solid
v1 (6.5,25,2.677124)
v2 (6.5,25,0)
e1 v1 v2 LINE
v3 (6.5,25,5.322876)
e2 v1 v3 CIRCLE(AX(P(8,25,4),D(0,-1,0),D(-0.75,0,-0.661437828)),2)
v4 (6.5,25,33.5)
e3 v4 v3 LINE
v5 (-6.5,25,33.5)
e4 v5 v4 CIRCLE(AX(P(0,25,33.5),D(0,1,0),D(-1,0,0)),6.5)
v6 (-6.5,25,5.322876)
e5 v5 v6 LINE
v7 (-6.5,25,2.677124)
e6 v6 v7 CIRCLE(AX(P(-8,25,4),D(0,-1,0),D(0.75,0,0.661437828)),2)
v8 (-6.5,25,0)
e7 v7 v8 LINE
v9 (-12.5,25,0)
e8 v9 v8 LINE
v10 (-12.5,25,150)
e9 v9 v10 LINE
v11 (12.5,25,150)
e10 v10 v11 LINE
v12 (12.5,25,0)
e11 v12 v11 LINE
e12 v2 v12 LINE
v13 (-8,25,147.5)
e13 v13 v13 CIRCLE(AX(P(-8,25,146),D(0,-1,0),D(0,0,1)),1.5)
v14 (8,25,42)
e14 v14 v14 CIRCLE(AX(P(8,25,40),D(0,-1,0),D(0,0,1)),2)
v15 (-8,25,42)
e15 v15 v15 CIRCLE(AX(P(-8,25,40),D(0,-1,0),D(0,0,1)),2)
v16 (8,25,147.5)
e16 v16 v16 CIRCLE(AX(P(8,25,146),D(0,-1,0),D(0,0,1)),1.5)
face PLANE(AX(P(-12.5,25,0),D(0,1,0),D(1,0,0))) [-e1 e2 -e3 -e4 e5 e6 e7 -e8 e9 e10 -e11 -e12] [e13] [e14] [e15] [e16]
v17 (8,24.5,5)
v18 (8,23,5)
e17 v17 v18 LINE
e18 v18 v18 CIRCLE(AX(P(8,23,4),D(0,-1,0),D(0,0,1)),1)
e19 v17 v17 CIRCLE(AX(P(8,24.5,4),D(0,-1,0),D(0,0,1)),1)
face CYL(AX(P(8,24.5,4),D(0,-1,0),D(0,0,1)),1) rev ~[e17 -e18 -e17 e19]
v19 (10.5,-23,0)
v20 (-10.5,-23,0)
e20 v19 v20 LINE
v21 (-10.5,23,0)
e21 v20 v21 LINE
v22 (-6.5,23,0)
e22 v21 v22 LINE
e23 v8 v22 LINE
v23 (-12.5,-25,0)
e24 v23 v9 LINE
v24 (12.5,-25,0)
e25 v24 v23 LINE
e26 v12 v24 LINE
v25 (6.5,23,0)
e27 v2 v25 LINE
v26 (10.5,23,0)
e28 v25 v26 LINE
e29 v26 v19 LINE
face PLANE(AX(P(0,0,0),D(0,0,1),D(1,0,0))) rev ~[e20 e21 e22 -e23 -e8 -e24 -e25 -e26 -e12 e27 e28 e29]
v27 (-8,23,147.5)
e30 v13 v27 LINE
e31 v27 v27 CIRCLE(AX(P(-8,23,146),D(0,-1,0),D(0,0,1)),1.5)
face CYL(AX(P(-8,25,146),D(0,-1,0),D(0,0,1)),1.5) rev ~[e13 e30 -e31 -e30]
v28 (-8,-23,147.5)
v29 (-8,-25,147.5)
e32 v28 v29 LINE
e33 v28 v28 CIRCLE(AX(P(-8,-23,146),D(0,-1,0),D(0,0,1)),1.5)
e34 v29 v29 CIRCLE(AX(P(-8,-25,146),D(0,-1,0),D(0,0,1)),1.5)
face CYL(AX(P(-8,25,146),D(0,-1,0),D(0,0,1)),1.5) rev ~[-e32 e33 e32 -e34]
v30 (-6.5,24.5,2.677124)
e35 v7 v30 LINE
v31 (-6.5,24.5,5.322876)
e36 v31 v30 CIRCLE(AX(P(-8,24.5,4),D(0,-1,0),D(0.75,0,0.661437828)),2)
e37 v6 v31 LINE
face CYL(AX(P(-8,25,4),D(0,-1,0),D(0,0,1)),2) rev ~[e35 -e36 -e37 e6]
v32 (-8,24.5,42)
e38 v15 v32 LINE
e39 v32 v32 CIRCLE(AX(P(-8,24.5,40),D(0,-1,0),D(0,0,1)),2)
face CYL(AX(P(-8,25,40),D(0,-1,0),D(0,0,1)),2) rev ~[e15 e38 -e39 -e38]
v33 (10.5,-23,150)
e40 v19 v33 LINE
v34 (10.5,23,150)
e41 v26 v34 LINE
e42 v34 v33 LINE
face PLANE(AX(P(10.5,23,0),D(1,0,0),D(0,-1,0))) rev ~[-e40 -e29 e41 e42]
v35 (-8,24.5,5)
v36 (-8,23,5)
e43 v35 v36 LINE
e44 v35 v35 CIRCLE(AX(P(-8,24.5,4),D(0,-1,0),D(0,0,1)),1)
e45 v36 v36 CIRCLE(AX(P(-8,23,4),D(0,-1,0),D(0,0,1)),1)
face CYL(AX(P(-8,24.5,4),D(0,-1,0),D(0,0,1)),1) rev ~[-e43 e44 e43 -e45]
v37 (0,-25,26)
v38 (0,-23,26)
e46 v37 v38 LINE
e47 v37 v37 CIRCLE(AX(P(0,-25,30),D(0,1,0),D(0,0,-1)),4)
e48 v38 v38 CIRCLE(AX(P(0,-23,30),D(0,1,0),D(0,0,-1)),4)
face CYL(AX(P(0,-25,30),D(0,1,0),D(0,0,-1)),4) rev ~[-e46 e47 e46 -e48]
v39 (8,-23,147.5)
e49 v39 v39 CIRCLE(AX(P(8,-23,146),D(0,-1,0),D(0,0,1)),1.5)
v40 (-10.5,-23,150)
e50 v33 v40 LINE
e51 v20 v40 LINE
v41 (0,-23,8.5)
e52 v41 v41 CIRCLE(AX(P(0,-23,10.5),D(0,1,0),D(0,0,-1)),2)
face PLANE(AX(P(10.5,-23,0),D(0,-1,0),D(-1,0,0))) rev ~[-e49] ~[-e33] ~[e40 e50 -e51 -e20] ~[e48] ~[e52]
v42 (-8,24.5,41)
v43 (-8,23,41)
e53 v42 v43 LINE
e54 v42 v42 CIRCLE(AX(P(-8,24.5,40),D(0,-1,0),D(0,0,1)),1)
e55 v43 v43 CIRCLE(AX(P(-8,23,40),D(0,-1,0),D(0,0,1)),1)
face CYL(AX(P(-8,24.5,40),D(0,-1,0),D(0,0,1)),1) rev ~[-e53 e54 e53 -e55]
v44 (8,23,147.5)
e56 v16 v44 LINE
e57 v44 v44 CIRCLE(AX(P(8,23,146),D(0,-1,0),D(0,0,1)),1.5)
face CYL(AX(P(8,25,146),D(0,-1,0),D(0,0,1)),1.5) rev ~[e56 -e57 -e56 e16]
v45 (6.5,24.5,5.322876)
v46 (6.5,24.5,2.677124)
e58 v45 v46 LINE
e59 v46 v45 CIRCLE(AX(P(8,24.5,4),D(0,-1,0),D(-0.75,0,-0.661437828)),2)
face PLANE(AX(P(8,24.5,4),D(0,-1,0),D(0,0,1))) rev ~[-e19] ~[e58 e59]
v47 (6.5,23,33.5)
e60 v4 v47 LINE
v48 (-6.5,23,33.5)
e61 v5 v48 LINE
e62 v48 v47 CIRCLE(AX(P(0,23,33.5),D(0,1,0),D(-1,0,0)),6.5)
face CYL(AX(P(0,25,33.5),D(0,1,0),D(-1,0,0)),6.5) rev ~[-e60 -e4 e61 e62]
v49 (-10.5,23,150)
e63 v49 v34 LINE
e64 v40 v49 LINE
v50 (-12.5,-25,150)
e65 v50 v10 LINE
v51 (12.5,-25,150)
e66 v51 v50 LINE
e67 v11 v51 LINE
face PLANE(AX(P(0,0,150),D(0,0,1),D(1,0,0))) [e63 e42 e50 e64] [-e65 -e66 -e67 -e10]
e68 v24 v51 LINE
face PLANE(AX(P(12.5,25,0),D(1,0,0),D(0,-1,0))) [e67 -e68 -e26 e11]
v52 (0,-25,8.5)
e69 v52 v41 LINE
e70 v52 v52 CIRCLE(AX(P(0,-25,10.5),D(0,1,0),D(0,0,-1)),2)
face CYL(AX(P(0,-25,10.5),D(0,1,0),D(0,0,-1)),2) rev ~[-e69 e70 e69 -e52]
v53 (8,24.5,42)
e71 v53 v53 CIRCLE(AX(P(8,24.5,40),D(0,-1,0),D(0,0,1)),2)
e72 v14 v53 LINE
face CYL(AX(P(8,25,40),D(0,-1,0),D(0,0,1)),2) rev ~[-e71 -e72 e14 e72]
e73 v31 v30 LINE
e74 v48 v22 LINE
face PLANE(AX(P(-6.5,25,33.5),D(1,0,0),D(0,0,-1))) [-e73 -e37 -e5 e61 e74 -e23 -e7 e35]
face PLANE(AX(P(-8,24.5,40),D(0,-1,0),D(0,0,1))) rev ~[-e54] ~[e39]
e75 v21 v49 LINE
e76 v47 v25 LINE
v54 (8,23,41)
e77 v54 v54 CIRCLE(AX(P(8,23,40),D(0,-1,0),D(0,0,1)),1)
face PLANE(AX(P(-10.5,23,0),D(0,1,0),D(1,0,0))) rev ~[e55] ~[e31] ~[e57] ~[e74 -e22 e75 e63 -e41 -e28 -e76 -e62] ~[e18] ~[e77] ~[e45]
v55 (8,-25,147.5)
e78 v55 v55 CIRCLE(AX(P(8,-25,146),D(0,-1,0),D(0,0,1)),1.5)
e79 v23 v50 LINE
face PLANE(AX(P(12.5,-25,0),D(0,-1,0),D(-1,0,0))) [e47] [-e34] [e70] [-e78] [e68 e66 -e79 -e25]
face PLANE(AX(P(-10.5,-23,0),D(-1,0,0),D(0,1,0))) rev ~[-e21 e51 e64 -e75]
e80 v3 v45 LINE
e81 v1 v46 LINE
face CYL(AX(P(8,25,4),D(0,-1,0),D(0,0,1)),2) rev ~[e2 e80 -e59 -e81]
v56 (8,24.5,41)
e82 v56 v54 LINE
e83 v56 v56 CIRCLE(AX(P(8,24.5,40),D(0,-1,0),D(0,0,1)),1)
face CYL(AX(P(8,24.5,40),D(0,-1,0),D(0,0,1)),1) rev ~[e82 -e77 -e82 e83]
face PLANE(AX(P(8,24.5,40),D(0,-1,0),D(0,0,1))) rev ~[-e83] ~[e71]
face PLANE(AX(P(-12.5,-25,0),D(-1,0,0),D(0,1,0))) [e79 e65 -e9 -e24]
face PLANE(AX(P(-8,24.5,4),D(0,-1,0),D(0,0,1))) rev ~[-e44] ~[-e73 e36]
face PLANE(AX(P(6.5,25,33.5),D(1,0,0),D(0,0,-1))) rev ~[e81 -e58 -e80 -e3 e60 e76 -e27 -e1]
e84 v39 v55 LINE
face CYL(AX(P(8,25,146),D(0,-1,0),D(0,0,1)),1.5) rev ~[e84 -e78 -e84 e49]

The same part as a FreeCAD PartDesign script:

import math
import FreeCAD as App
import Part
import Sketcher

doc = App.newDocument("Part")
params = doc.addObject("Spreadsheet::Sheet", "Params")
for row, (alias, value) in enumerate([
    ("sketch1_width", "25 mm"),
    ("sketch1_width2", "21 mm"),
    ("sketch1_height", "50 mm"),
    ("sketch1_height2", "46 mm"),
    ("pad1_length", "150 mm"),
    ("sketch2_radius", "6.5 mm"),
    ("sketch2_height", "33.5 mm"),
    ("pocket1_length", "2 mm"),
    ("sketch3_diameter", "2 mm"),
    ("hole_diameter", "2 mm"),
    ("hole_depth", "2 mm"),
    ("hole_cbore_diameter", "4 mm"),
    ("hole_cbore_depth", "0.5 mm"),
    ("sketch4_diameter", "4 mm"),
    ("hole2_diameter", "4 mm"),
    ("sketch5_diameter", "3 mm"),
    ("hole3_diameter", "3 mm"),
    ("sketch6_diameter", "8 mm"),
    ("hole4_diameter", "8 mm"),
], start=1):
    params.set(f"A{row}", alias)
    params.set(f"B{row}", "=" + value)
    params.setAlias(f"B{row}", alias)

body = doc.addObject("PartDesign::Body", "Body")

# Sketch on XY plane
sketch1 = body.newObject("Sketcher::SketchObject", "Sketch")
sketch1.AttachmentSupport = (doc.getObject("XY_Plane"), [""])
sketch1.MapMode = "FlatFace"
sketch1.addGeometry([
    Part.LineSegment(App.Vector(12, 25, 0), App.Vector(-12, 25, 0)),  # 0
    Part.LineSegment(App.Vector(-12, 25, 0), App.Vector(-12, -25, 0)),  # 1
    Part.LineSegment(App.Vector(-12, -25, 0), App.Vector(12, -25, 0)),  # 2
    Part.LineSegment(App.Vector(12, -25, 0), App.Vector(12, 25, 0)),  # 3
    Part.LineSegment(App.Vector(-10, -23, 0), App.Vector(-10, 23, 0)),  # 4
    Part.LineSegment(App.Vector(-10, 23, 0), App.Vector(10, 23, 0)),  # 5
    Part.LineSegment(App.Vector(10, 23, 0), App.Vector(10, -23, 0)),  # 6
    Part.LineSegment(App.Vector(10, -23, 0), App.Vector(-10, -23, 0)),  # 7
], False)
sketch1.addConstraint([
    Sketcher.Constraint("Coincident", 0, 2, 1, 1),
    Sketcher.Constraint("Coincident", 1, 2, 2, 1),
    Sketcher.Constraint("Coincident", 2, 2, 3, 1),
    Sketcher.Constraint("Coincident", 3, 2, 0, 1),
    Sketcher.Constraint("Coincident", 4, 2, 5, 1),
    Sketcher.Constraint("Coincident", 5, 2, 6, 1),
    Sketcher.Constraint("Coincident", 6, 2, 7, 1),
    Sketcher.Constraint("Coincident", 7, 2, 4, 1),
    Sketcher.Constraint("Horizontal", 0),
    Sketcher.Constraint("Vertical", 1),
    Sketcher.Constraint("Horizontal", 2),
    Sketcher.Constraint("Vertical", 3),
    Sketcher.Constraint("Vertical", 4),
    Sketcher.Constraint("Horizontal", 5),
    Sketcher.Constraint("Vertical", 6),
    Sketcher.Constraint("Horizontal", 7),
    Sketcher.Constraint("Symmetric", 0, 2, 2, 2, -1, 1),
    Sketcher.Constraint("Symmetric", 4, 2, 6, 2, -1, 1),
    Sketcher.Constraint("DistanceX", 0, 2, 0, 1, 25.0),
    Sketcher.Constraint("DistanceX", 5, 1, 5, 2, 21.0),
    Sketcher.Constraint("DistanceY", 1, 2, 1, 1, 50.0),
    Sketcher.Constraint("DistanceY", 4, 1, 4, 2, 46.0),
])
sketch1.setExpression("Constraints[18]", "Params.sketch1_width")
sketch1.setExpression("Constraints[19]", "Params.sketch1_width2")
sketch1.setExpression("Constraints[20]", "Params.sketch1_height")
sketch1.setExpression("Constraints[21]", "Params.sketch1_height2")
pad1 = body.newObject("PartDesign::Pad", "Pad")
pad1.Profile = sketch1
pad1.setExpression("Length", "Params.pad1_length")

# Sketch on XZ plane
sketch2 = body.newObject("Sketcher::SketchObject", "Sketch001")
sketch2.AttachmentSupport = (doc.getObject("XZ_Plane"), [""])
sketch2.MapMode = "FlatFace"
sketch2.AttachmentOffset = App.Placement(App.Vector(0, 0, -25), App.Rotation())
sketch2.addGeometry([
    Part.LineSegment(App.Vector(6, 0, 0), App.Vector(-6, 0, 0)),
    Part.LineSegment(App.Vector(-6, 0, 0), App.Vector(-6, 34, 0)),
    Part.ArcOfCircle(Part.Circle(App.Vector(0, 34, 0), App.Vector(0, 0, 1), 6), math.radians(0), math.radians(180)),
    Part.LineSegment(App.Vector(6, 34, 0), App.Vector(6, 0, 0)),
], False)
sketch2.addConstraint([
    Sketcher.Constraint("Coincident", 0, 2, 1, 1),
    Sketcher.Constraint("Tangent", 1, 2, 2, 2),
    Sketcher.Constraint("Tangent", 2, 1, 3, 1),
    Sketcher.Constraint("Coincident", 3, 2, 0, 1),
    Sketcher.Constraint("Horizontal", 0),
    Sketcher.Constraint("Vertical", 1),
    Sketcher.Constraint("Vertical", 3),
    Sketcher.Constraint("Symmetric", 0, 2, 3, 2, -1, 1),
    Sketcher.Constraint("Radius", 2, 6.5),
    Sketcher.Constraint("DistanceY", 1, 1, 1, 2, 33.5),
])
sketch2.setExpression("Constraints[8]", "Params.sketch2_radius")
sketch2.setExpression("Constraints[9]", "Params.sketch2_height")
pocket1 = body.newObject("PartDesign::Pocket", "Pocket")
pocket1.Profile = sketch2
pocket1.setExpression("Length", "Params.pocket1_length")
pocket1.Reversed = True

# Sketch on XZ plane
sketch3 = body.newObject("Sketcher::SketchObject", "Sketch002")
sketch3.AttachmentSupport = (doc.getObject("XZ_Plane"), [""])
sketch3.MapMode = "FlatFace"
sketch3.AttachmentOffset = App.Placement(App.Vector(0, 0, -25), App.Rotation())
sketch3.addGeometry([
    Part.Circle(App.Vector(-8, 4, 0), App.Vector(0, 0, 1), 1),
    Part.Circle(App.Vector(8, 4, 0), App.Vector(0, 0, 1), 1),
    Part.Circle(App.Vector(8, 40, 0), App.Vector(0, 0, 1), 1),
    Part.Circle(App.Vector(-8, 40, 0), App.Vector(0, 0, 1), 1),
], False)
sketch3.addConstraint([
    Sketcher.Constraint("Equal", 0, 1),
    Sketcher.Constraint("Equal", 1, 2),
    Sketcher.Constraint("Equal", 2, 3),
    Sketcher.Constraint("Symmetric", 0, 3, 1, 3, -2),
    Sketcher.Constraint("Symmetric", 2, 3, 3, 3, -2),
    Sketcher.Constraint("Vertical", 1, 3, 2, 3),
    Sketcher.Constraint("Diameter", 0, 2.0),
    Sketcher.Constraint("DistanceX", 0, 3, -1, 1, 8.0),
    Sketcher.Constraint("DistanceY", -1, 1, 0, 3, 4.0),
    Sketcher.Constraint("DistanceY", -1, 1, 2, 3, 40.0),
])
sketch3.setExpression("Constraints[6]", "Params.sketch3_diameter")
doc.recompute()
hole = body.newObject("PartDesign::Hole", "Hole")
hole.Profile = sketch3
hole.ThreadType = "None"
hole.setExpression("Diameter", "Params.hole_diameter")
hole.DepthType = "Dimension"
hole.setExpression("Depth", "Params.hole_depth")
hole.DrillPoint = "Angled"
hole.DrillPointAngle = 118
hole.HoleCutType = "Counterbore"
hole.setExpression("HoleCutDiameter", "Params.hole_cbore_diameter")
hole.setExpression("HoleCutDepth", "Params.hole_cbore_depth")
hole.Reversed = True

# Sketch on XZ plane
sketch4 = body.newObject("Sketcher::SketchObject", "Sketch003")
sketch4.AttachmentSupport = (doc.getObject("XZ_Plane"), [""])
sketch4.MapMode = "FlatFace"
sketch4.AttachmentOffset = App.Placement(App.Vector(0, 0, 25), App.Rotation())
sketch4.addGeometry(Part.Circle(App.Vector(0, 10.5, 0), App.Vector(0, 0, 1), 2), False)
sketch4.addConstraint([
    Sketcher.Constraint("PointOnObject", 0, 3, -2),
    Sketcher.Constraint("Diameter", 0, 4.0),
    Sketcher.Constraint("DistanceY", -1, 1, 0, 3, 10.5),
])
sketch4.setExpression("Constraints[1]", "Params.sketch4_diameter")
doc.recompute()
hole2 = body.newObject("PartDesign::Hole", "Hole001")
hole2.Profile = sketch4
hole2.ThreadType = "None"
hole2.setExpression("Diameter", "Params.hole2_diameter")
hole2.DepthType = "ThroughAll"

# Sketch on XZ plane
sketch5 = body.newObject("Sketcher::SketchObject", "Sketch004")
sketch5.AttachmentSupport = (doc.getObject("XZ_Plane"), [""])
sketch5.MapMode = "FlatFace"
sketch5.AttachmentOffset = App.Placement(App.Vector(0, 0, -25), App.Rotation())
sketch5.addGeometry([
    Part.Circle(App.Vector(-8, 146, 0), App.Vector(0, 0, 1), 1.5),
    Part.Circle(App.Vector(8, 146, 0), App.Vector(0, 0, 1), 1.5),
], False)
sketch5.addConstraint([
    Sketcher.Constraint("Equal", 0, 1),
    Sketcher.Constraint("Symmetric", 0, 3, 1, 3, -2),
    Sketcher.Constraint("Diameter", 0, 3.0),
    Sketcher.Constraint("DistanceX", 0, 3, -1, 1, 8.0),
    Sketcher.Constraint("DistanceY", -1, 1, 0, 3, 146.0),
])
sketch5.setExpression("Constraints[2]", "Params.sketch5_diameter")
doc.recompute()
hole3 = body.newObject("PartDesign::Hole", "Hole002")
hole3.Profile = sketch5
hole3.ThreadType = "None"
hole3.setExpression("Diameter", "Params.hole3_diameter")
hole3.DepthType = "ThroughAll"
hole3.Reversed = True

# Sketch on XZ plane
sketch6 = body.newObject("Sketcher::SketchObject", "Sketch005")
sketch6.AttachmentSupport = (doc.getObject("XZ_Plane"), [""])
sketch6.MapMode = "FlatFace"
sketch6.AttachmentOffset = App.Placement(App.Vector(0, 0, 25), App.Rotation())
sketch6.addGeometry(Part.Circle(App.Vector(0, 30, 0), App.Vector(0, 0, 1), 4), False)
sketch6.addConstraint([
    Sketcher.Constraint("PointOnObject", 0, 3, -2),
    Sketcher.Constraint("Diameter", 0, 8.0),
    Sketcher.Constraint("DistanceY", -1, 1, 0, 3, 30.0),
])
sketch6.setExpression("Constraints[1]", "Params.sketch6_diameter")
doc.recompute()
hole4 = body.newObject("PartDesign::Hole", "Hole003")
hole4.Profile = sketch6
hole4.ThreadType = "None"
hole4.setExpression("Diameter", "Params.hole4_diameter")
hole4.DepthType = "ThroughAll"

doc.recompute()
